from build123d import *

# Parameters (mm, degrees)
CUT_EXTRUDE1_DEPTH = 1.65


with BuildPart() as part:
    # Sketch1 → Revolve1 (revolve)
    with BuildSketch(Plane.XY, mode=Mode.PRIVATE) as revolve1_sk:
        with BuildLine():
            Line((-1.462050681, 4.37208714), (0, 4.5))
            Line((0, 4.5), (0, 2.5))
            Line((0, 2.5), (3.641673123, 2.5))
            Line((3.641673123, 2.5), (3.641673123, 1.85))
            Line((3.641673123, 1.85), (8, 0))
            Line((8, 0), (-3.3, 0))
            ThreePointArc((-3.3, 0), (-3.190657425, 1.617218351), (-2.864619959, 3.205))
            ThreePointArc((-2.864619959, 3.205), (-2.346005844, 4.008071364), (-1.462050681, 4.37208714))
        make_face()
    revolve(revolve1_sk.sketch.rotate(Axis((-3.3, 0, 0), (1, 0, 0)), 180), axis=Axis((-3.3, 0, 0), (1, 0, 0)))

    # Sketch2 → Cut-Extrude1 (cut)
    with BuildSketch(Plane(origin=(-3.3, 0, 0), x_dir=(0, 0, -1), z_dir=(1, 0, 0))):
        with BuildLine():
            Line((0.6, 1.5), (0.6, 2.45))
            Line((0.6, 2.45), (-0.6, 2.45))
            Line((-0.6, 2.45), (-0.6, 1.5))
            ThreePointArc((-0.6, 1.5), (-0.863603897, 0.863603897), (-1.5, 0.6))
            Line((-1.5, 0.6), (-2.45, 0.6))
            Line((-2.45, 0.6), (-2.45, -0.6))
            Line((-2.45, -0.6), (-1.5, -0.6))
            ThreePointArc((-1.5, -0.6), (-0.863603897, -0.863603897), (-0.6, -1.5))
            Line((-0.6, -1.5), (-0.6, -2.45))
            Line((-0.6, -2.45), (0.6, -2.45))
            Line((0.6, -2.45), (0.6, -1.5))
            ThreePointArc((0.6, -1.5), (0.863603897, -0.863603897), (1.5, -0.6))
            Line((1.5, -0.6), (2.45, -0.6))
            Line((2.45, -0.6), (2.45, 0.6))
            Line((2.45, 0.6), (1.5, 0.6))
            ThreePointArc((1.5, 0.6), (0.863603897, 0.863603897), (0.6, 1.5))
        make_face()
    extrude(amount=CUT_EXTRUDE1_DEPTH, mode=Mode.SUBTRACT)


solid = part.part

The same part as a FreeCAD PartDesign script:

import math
import FreeCAD as App
import Part
import Sketcher
from FreeCAD import Vector
Q = App.Units.Quantity

doc = App.newDocument("Part")
body = doc.addObject("PartDesign::Body", "Body")

sketch1 = body.newObject("Sketcher::SketchObject", "Sketch")
sketch1.AttachmentSupport = (doc.getObject("XY_Plane"), [""])
sketch1.MapMode = "FlatFace"
sketch1.addGeometry([
    Part.LineSegment(Vector(0, 4.5, 0), Vector(-1.5, 4.4, 0)),
    Part.ArcOfCircle(Part.Circle(Vector(-1.3, 2.8, 0), Vector(0, 0, 1), 1.6), math.radians(95), math.radians(165)),
    Part.ArcOfCircle(Part.Circle(Vector(8.7, 0, 0), Vector(0, 0, 1), 12), math.radians(164.53), math.radians(180)),
    Part.LineSegment(Vector(-3.3, 0, 0), Vector(8, 0, 0)),
    Part.LineSegment(Vector(8, 0, 0), Vector(3.6, 1.9, 0)),
    Part.LineSegment(Vector(3.6, 1.9, 0), Vector(3.6, 2.5, 0)),
    Part.LineSegment(Vector(3.6, 2.5, 0), Vector(0, 2.5, 0)),
    Part.LineSegment(Vector(0, 2.5, 0), Vector(0, 4.5, 0)),
], False)
sketch1.addConstraint([
    Sketcher.Constraint("Tangent", 0, 2, 1, 1),
    Sketcher.Constraint("Tangent", 1, 2, 2, 1),
    Sketcher.Constraint("Coincident", 2, 2, 3, 1),
    Sketcher.Constraint("Coincident", 3, 2, 4, 1),
    Sketcher.Constraint("Coincident", 4, 2, 5, 1),
    Sketcher.Constraint("Coincident", 5, 2, 6, 1),
    Sketcher.Constraint("Coincident", 6, 2, 7, 1),
    Sketcher.Constraint("Coincident", 7, 2, 0, 1),
    Sketcher.Constraint("Horizontal", 3),
    Sketcher.Constraint("Vertical", 5),
    Sketcher.Constraint("Horizontal", 6),
    Sketcher.Constraint("Vertical", 7),
    Sketcher.Constraint("PointOnObject", 2, 3, -1),
    Sketcher.Constraint("PointOnObject", 2, 2, -1),
    Sketcher.Constraint("PointOnObject", 6, 2, -2),
    Sketcher.Constraint("Radius", 1, 1.6),
    Sketcher.Constraint("DistanceY", 7, 1, 7, 2, 2.0),
    Sketcher.Constraint("Angle", 0, Q("-175 deg")),
    Sketcher.Constraint("Angle", 4, Q("157 deg")),
    Sketcher.Constraint("DistanceX", 3, 1, 3, 2, 11.3),
    Sketcher.Constraint("DistanceX", -1, 1, 3, 2, 8.0),
    Sketcher.Constraint("DistanceY", 5, 1, 5, 2, 0.65),
    Sketcher.Constraint("DistanceY", -1, 1, 5, 2, 2.5),
    Sketcher.Constraint("Radius", 2, 12.014309),
])
revolution = body.newObject("PartDesign::Revolution", "Revolution")
revolution.Profile = sketch1
revolution.ReferenceAxis = (sketch1, ["H_Axis"])
revolution.Angle = 360

sketch2 = body.newObject("Sketcher::SketchObject", "Sketch001")
sketch2.AttachmentSupport = (doc.getObject("YZ_Plane"), [""])
sketch2.MapMode = "FlatFace"
sketch2.AttachmentOffset = App.Placement(Vector(0, 0, -3.3), App.Rotation())
sketch2.addGeometry([
    Part.LineSegment(Vector(1.5, -0.6, 0), Vector(2.5, -0.6, 0)),
    Part.LineSegment(Vector(2.5, -0.6, 0), Vector(2.5, 0.6, 0)),
    Part.LineSegment(Vector(2.5, 0.6, 0), Vector(1.5, 0.6, 0)),
    Part.ArcOfCircle(Part.Circle(Vector(1.5, 1.5, 0), Vector(0, 0, 1), 0.9), math.radians(180), math.radians(270)),
    Part.LineSegment(Vector(0.6, 1.5, 0), Vector(0.6, 2.5, 0)),
    Part.LineSegment(Vector(0.6, 2.5, 0), Vector(-0.6, 2.5, 0)),
    Part.LineSegment(Vector(-0.6, 2.5, 0), Vector(-0.6, 1.5, 0)),
    Part.ArcOfCircle(Part.Circle(Vector(-1.5, 1.5, 0), Vector(0, 0, 1), 0.9), math.radians(-90), math.radians(0)),
    Part.LineSegment(Vector(-1.5, 0.6, 0), Vector(-2.5, 0.6, 0)),
    Part.LineSegment(Vector(-2.5, 0.6, 0), Vector(-2.5, -0.6, 0)),
    Part.LineSegment(Vector(-2.5, -0.6, 0), Vector(-1.5, -0.6, 0)),
    Part.ArcOfCircle(Part.Circle(Vector(-1.5, -1.5, 0), Vector(0, 0, 1), 0.9), math.radians(0), math.radians(90)),
    Part.LineSegment(Vector(-0.6, -1.5, 0), Vector(-0.6, -2.5, 0)),
    Part.LineSegment(Vector(-0.6, -2.5, 0), Vector(0.6, -2.5, 0)),
    Part.LineSegment(Vector(0.6, -2.5, 0), Vector(0.6, -1.5, 0)),
    Part.ArcOfCircle(Part.Circle(Vector(1.5, -1.5, 0), Vector(0, 0, 1), 0.9), math.radians(90), math.radians(180)),
], False)
sketch2.addConstraint([
    Sketcher.Constraint("Coincident", 0, 2, 1, 1),
    Sketcher.Constraint("Coincident", 1, 2, 2, 1),
    Sketcher.Constraint("Tangent", 2, 2, 3, 2),
    Sketcher.Constraint("Tangent", 3, 1, 4, 1),
    Sketcher.Constraint("Coincident", 4, 2, 5, 1),
    Sketcher.Constraint("Coincident", 5, 2, 6, 1),
    Sketcher.Constraint("Tangent", 6, 2, 7, 2),
    Sketcher.Constraint("Tangent", 7, 1, 8, 1),
    Sketcher.Constraint("Coincident", 8, 2, 9, 1),
    Sketcher.Constraint("Coincident", 9, 2, 10, 1),
    Sketcher.Constraint("Tangent", 10, 2, 11, 2),
    Sketcher.Constraint("Tangent", 11, 1, 12, 1),
    Sketcher.Constraint("Coincident", 12, 2, 13, 1),
    Sketcher.Constraint("Coincident", 13, 2, 14, 1),
    Sketcher.Constraint("Tangent", 14, 2, 15, 2),
    Sketcher.Constraint("Tangent", 15, 1, 0, 1),
    Sketcher.Constraint("Horizontal", 0),
    Sketcher.Constraint("Vertical", 1),
    Sketcher.Constraint("Horizontal", 2),
    Sketcher.Constraint("Vertical", 4),
    Sketcher.Constraint("Horizontal", 5),
    Sketcher.Constraint("Vertical", 6),
    Sketcher.Constraint("Horizontal", 8),
    Sketcher.Constraint("Vertical", 9),
    Sketcher.Constraint("Horizontal", 10),
    Sketcher.Constraint("Vertical", 12),
    Sketcher.Constraint("Horizontal", 13),
    Sketcher.Constraint("Vertical", 14),
    Sketcher.Constraint("Equal", 3, 7),
    Sketcher.Constraint("Equal", 7, 11),
    Sketcher.Constraint("Equal", 11, 15),
    Sketcher.Constraint("Symmetric", 3, 3, 11, 3, -1, 1),
    Sketcher.Constraint("Symmetric", 7, 3, 15, 3, -1, 1),
    Sketcher.Constraint("Symmetric", 3, 3, 7, 3, -2),
    Sketcher.Constraint("Equal", 2, 8),
    Sketcher.Constraint("Equal", 13, 1),
    Sketcher.Constraint("Equal", 10, 4),
    Sketcher.Constraint("Equal", 6, 12),
    Sketcher.Constraint("Radius", 3, 0.9),
    Sketcher.Constraint("DistanceX", 5, 2, 5, 1, 1.2),
    Sketcher.Constraint("DistanceX", 0, 1, 0, 2, 0.95),
])
pocket1 = body.newObject("PartDesign::Pocket", "Pocket")
pocket1.Profile = sketch2
pocket1.Length = 1.65
pocket1.Reversed = True

doc.recompute()
